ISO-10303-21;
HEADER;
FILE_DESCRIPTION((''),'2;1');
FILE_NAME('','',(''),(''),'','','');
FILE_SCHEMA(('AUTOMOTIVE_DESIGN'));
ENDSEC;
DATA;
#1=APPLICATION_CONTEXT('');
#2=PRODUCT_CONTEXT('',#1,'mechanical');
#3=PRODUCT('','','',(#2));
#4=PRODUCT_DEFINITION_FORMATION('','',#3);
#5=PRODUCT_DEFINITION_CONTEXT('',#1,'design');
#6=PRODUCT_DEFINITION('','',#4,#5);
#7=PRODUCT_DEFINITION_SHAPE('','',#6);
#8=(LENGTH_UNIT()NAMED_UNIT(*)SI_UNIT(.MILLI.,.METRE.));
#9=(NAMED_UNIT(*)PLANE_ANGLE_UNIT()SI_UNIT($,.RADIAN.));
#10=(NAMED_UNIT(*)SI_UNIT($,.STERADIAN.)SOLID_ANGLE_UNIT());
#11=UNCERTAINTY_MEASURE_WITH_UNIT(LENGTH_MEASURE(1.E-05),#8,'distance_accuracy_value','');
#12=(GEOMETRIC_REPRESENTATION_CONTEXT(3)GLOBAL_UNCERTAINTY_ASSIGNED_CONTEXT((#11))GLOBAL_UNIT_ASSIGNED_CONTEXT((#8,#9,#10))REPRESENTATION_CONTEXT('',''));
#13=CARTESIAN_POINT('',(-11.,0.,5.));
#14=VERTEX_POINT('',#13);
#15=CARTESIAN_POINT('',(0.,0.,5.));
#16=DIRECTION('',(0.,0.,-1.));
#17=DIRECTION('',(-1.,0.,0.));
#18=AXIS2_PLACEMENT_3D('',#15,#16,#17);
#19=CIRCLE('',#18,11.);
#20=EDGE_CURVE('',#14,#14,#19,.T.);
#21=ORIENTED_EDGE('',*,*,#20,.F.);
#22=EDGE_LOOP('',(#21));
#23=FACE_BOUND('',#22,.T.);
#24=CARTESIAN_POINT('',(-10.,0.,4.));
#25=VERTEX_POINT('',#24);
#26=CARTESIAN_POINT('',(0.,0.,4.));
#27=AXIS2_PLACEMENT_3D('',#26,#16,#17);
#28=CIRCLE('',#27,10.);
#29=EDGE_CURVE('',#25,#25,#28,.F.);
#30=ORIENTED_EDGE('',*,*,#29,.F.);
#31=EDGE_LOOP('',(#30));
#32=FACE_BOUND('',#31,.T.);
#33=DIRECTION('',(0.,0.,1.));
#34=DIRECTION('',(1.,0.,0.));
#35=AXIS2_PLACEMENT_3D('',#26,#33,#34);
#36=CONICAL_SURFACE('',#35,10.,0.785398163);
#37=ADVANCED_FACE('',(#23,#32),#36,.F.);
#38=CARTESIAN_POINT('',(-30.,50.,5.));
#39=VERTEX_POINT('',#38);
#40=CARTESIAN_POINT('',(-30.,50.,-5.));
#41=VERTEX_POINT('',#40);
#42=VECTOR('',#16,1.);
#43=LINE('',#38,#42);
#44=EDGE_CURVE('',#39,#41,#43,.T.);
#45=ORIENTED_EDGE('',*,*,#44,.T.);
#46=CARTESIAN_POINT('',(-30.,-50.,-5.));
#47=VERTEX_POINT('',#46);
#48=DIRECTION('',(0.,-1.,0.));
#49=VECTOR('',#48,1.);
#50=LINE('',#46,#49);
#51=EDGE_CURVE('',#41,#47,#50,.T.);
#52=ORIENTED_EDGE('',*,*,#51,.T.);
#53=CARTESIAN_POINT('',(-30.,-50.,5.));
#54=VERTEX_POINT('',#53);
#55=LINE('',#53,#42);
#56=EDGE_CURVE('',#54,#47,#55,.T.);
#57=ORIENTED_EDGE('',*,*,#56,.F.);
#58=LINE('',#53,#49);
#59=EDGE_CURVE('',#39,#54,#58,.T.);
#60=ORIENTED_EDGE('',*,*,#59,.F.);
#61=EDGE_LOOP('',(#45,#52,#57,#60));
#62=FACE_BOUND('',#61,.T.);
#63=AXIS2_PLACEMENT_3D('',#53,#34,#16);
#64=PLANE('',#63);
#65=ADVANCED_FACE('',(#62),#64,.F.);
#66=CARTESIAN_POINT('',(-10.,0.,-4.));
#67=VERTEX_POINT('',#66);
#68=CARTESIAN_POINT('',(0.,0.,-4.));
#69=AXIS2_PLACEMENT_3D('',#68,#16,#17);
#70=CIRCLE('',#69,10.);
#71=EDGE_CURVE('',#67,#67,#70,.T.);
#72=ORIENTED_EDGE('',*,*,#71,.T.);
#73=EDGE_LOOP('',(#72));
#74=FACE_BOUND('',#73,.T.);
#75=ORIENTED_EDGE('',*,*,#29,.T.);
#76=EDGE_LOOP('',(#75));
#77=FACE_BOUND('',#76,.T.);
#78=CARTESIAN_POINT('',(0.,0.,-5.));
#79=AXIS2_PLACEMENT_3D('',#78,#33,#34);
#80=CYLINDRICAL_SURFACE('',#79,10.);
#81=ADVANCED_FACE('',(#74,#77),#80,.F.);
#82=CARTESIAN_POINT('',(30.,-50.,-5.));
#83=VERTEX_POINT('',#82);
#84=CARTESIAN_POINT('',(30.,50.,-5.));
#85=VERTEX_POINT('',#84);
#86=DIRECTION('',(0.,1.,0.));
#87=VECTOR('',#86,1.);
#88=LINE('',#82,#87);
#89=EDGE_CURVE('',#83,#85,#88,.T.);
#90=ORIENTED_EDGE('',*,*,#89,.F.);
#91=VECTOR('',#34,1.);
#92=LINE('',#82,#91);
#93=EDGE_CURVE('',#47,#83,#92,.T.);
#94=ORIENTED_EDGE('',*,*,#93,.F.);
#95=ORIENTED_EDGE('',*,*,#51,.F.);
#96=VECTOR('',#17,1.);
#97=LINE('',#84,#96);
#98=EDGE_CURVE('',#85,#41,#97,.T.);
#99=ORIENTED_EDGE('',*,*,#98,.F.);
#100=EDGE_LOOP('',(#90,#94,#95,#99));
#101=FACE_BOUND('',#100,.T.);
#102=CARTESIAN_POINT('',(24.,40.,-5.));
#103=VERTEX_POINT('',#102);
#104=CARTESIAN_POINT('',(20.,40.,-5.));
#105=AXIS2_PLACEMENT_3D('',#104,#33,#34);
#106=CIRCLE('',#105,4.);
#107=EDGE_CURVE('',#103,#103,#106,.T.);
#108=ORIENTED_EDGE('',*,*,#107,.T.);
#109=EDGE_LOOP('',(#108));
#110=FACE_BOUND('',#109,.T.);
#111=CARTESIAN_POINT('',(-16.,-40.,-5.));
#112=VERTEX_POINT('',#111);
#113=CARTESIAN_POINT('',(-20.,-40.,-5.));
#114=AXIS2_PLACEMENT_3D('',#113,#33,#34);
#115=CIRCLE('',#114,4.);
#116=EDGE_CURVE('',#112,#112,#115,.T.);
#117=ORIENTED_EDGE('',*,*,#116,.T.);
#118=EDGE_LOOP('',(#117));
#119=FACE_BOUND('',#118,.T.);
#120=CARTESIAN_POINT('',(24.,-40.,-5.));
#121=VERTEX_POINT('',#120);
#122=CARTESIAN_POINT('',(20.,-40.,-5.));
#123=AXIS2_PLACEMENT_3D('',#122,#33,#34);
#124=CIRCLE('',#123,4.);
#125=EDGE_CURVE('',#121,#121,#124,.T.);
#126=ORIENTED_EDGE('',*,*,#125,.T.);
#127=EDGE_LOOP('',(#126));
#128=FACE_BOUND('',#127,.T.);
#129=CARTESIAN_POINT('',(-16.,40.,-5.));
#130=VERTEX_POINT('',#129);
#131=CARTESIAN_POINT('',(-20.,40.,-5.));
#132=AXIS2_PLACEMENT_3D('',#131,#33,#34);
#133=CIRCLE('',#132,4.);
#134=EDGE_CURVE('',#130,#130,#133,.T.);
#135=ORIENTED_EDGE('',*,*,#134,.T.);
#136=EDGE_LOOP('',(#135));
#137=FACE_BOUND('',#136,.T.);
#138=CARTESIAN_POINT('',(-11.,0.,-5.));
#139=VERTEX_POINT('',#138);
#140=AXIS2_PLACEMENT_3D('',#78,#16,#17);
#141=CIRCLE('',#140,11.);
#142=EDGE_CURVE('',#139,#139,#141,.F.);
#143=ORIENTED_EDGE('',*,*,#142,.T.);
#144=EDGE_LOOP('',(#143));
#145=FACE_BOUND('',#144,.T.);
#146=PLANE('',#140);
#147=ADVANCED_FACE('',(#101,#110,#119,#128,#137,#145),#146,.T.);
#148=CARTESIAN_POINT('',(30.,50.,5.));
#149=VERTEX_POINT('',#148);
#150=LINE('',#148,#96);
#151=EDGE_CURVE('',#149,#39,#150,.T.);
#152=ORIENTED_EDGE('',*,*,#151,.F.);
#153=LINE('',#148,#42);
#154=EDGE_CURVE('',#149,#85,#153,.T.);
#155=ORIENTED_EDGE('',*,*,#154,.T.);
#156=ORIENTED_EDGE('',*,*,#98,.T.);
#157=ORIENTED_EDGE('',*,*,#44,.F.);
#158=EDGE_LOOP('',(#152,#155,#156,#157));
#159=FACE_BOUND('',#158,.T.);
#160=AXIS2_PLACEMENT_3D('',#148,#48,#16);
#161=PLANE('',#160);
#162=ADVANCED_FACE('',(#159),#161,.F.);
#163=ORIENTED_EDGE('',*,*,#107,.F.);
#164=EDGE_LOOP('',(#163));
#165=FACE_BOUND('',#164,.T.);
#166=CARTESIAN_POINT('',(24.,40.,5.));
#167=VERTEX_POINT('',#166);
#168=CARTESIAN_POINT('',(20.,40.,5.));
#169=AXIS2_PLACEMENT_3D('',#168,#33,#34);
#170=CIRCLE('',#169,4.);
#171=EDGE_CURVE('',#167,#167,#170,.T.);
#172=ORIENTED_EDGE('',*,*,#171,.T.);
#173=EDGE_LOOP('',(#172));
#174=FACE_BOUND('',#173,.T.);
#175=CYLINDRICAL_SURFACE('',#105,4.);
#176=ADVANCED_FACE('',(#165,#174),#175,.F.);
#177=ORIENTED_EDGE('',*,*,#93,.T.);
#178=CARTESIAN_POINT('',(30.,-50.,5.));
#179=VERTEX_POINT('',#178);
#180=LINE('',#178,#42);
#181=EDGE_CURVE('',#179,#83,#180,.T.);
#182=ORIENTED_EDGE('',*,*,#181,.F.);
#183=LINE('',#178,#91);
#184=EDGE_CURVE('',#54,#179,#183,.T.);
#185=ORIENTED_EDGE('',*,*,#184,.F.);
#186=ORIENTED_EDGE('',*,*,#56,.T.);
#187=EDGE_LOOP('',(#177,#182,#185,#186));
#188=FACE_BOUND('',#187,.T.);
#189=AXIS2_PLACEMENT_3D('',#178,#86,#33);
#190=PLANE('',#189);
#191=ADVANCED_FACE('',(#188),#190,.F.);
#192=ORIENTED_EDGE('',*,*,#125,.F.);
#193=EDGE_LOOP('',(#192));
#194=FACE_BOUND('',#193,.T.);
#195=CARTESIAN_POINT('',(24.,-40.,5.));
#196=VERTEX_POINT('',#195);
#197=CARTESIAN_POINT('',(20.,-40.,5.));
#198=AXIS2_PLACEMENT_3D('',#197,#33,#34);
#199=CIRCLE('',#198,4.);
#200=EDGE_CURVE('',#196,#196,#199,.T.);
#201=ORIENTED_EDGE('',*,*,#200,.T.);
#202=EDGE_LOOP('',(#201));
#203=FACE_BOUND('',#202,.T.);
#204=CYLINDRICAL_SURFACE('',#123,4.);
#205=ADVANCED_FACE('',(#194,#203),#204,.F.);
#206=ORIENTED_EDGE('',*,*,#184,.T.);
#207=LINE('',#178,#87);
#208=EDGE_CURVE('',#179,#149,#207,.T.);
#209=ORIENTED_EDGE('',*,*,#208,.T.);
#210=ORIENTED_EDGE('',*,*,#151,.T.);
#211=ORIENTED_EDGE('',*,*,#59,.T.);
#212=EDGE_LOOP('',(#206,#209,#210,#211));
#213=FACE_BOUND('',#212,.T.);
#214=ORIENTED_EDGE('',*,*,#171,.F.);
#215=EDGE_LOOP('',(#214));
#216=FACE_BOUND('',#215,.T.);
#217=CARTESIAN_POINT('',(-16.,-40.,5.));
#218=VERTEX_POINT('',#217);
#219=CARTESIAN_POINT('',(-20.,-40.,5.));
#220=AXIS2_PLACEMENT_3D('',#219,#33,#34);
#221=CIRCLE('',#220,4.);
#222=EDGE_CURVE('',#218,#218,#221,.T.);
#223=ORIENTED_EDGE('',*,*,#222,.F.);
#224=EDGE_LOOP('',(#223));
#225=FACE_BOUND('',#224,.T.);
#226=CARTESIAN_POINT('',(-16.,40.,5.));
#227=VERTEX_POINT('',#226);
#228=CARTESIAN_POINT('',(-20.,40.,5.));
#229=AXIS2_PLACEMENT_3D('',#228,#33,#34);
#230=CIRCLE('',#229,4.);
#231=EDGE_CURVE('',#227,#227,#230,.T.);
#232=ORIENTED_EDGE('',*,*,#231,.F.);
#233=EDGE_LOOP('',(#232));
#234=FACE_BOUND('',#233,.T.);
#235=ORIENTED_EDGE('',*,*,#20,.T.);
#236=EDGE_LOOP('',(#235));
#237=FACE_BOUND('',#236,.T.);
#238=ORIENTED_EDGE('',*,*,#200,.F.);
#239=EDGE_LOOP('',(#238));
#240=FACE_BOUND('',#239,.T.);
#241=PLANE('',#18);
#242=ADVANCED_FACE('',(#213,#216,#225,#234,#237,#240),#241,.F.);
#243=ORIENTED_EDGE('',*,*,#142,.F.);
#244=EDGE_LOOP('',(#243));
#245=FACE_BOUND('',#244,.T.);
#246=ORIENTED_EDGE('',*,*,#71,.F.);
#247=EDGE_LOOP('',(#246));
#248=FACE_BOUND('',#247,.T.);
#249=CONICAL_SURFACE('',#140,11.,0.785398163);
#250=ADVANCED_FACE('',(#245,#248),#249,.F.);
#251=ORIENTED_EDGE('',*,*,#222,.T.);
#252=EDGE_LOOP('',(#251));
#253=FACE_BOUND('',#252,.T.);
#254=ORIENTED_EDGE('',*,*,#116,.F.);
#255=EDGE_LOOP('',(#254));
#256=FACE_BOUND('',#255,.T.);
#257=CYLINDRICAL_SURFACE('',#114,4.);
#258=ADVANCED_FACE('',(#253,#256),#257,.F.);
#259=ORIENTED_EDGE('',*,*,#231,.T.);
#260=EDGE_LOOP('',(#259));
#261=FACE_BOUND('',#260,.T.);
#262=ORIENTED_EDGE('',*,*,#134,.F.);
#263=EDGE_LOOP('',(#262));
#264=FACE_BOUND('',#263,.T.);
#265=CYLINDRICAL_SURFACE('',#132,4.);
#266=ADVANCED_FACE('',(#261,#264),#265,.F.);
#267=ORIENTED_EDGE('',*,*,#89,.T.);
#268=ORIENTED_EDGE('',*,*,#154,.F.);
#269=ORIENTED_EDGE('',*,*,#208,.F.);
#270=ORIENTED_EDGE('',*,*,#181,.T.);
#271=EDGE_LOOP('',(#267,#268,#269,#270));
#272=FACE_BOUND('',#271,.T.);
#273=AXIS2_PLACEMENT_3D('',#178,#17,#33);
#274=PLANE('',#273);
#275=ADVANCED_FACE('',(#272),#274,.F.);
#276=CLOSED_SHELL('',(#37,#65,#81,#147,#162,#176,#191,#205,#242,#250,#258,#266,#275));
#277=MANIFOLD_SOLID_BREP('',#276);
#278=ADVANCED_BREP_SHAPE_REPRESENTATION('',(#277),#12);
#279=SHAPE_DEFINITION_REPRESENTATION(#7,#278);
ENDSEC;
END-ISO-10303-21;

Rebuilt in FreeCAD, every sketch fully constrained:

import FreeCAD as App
import Part
import Sketcher

V = App.Vector


def edges_at(feature, points):
    """Names of the edges that pass closest to the given points."""
    edges = feature.Shape.Edges
    near = lambda p: min(range(len(edges)), key=lambda i: edges[i].distToShape(Part.Vertex(*p))[0])
    return sorted({f"Edge{near(p) + 1}" for p in points})


def add_polygon(sketch, points):
    """Adds a closed chain of lines whose ends are joined by coincident constraints."""
    first, n = sketch.GeometryCount, len(points)
    for a, b in zip(points, points[1:] + points[:1]):
        sketch.addGeometry(Part.LineSegment(App.Vector(*a, 0), App.Vector(*b, 0)), False)
    for i in range(n):
        sketch.addConstraint(Sketcher.Constraint("Coincident", first + i, 2, first + (i + 1) % n, 1))

doc = App.newDocument("Part")
params = doc.addObject("Spreadsheet::Sheet", "Params")
for row, (alias, value) in enumerate([
    ("sketch1_width", "60 mm"),
    ("sketch1_height", "100 mm"),
    ("pad1_length", "10 mm"),
    ("sketch2_diameter", "8 mm"),
    ("sketch3_diameter", "20 mm"),
    ("chamfer_size", "1 mm"),
], start=1):
    params.set(f"A{row}", alias)
    params.set(f"B{row}", "=" + value)
    params.setAlias(f"B{row}", alias)

body = doc.addObject("PartDesign::Body", "Body")

sketch1 = doc.addObject("Sketcher::SketchObject", "Sketch")
body.addObject(sketch1)
sketch1.AttachmentSupport = (doc.XY_Plane, [""])
sketch1.MapMode = "FlatFace"
add_polygon(sketch1, [(-30, -50), (30, -50), (30, 50), (-30, 50)])
sketch1.addConstraint([
    Sketcher.Constraint("Horizontal", 0),
    Sketcher.Constraint("Vertical", 1),
    Sketcher.Constraint("Horizontal", 2),
    Sketcher.Constraint("Vertical", 3),
    Sketcher.Constraint("Symmetric", 0, 2, 2, 2, -1, 1),
    Sketcher.Constraint("DistanceX", 0, 1, 0, 2, 60.0),
    Sketcher.Constraint("DistanceY", 1, 1, 1, 2, 100.0),
])
sketch1.setExpression("Constraints[9]", "Params.sketch1_width")
sketch1.setExpression("Constraints[10]", "Params.sketch1_height")
pad1 = doc.addObject("PartDesign::Pad", "Pad")
body.addObject(pad1)
pad1.Profile = sketch1
pad1.setExpression("Length", "Params.pad1_length")
pad1.Midplane = True

sketch2 = doc.addObject("Sketcher::SketchObject", "Sketch001")
body.addObject(sketch2)
sketch2.AttachmentSupport = (doc.XY_Plane, [""])
sketch2.MapMode = "FlatFace"
sketch2.AttachmentOffset = App.Placement(V(0, 0, 5), App.Rotation())
sketch2.addGeometry([
    Part.Circle(V(20, -40, 0), V(0, 0, 1), 4),
    Part.Circle(V(20, 40, 0), V(0, 0, 1), 4),
    Part.Circle(V(-20, -40, 0), V(0, 0, 1), 4),
    Part.Circle(V(-20, 40, 0), V(0, 0, 1), 4),
], False)
sketch2.addConstraint([
    Sketcher.Constraint("Equal", 0, 1),
    Sketcher.Constraint("Equal", 1, 2),
    Sketcher.Constraint("Equal", 2, 3),
    Sketcher.Constraint("Symmetric", 1, 3, 2, 3, -1, 1),
    Sketcher.Constraint("Symmetric", 0, 3, 3, 3, -1, 1),
    Sketcher.Constraint("Symmetric", 0, 3, 2, 3, -2),
    Sketcher.Constraint("Diameter", 0, 8.0),
    Sketcher.Constraint("DistanceX", -1, 1, 0, 3, 20.0),
    Sketcher.Constraint("DistanceY", 0, 3, -1, 1, 40.0),
])
sketch2.setExpression("Constraints[6]", "Params.sketch2_diameter")
pocket1 = doc.addObject("PartDesign::Pocket", "Pocket")
body.addObject(pocket1)
pocket1.Profile = sketch2
pocket1.Type = "ThroughAll"

sketch3 = doc.addObject("Sketcher::SketchObject", "Sketch002")
body.addObject(sketch3)
sketch3.AttachmentSupport = (doc.XY_Plane, [""])
sketch3.MapMode = "FlatFace"
sketch3.AttachmentOffset = App.Placement(V(0, 0, 5), App.Rotation())
sketch3.addGeometry(Part.Circle(V(0, 0, 0), V(0, 0, 1), 10), False)
sketch3.addConstraint([
    Sketcher.Constraint("Coincident", 0, 3, -1, 1),
    Sketcher.Constraint("Diameter", 0, 20.0),
])
sketch3.setExpression("Constraints[1]", "Params.sketch3_diameter")
pocket2 = doc.addObject("PartDesign::Pocket", "Pocket001")
body.addObject(pocket2)
pocket2.Profile = sketch3
pocket2.Type = "ThroughAll"
doc.recompute()

chamfer = doc.addObject("PartDesign::Chamfer", "Chamfer")
body.addObject(chamfer)
chamfer.Base = (pocket2, edges_at(pocket2, [(-10, 0, -5), (-10, 0, 5)]))
chamfer.setExpression("Size", "Params.chamfer_size")

doc.recompute()
